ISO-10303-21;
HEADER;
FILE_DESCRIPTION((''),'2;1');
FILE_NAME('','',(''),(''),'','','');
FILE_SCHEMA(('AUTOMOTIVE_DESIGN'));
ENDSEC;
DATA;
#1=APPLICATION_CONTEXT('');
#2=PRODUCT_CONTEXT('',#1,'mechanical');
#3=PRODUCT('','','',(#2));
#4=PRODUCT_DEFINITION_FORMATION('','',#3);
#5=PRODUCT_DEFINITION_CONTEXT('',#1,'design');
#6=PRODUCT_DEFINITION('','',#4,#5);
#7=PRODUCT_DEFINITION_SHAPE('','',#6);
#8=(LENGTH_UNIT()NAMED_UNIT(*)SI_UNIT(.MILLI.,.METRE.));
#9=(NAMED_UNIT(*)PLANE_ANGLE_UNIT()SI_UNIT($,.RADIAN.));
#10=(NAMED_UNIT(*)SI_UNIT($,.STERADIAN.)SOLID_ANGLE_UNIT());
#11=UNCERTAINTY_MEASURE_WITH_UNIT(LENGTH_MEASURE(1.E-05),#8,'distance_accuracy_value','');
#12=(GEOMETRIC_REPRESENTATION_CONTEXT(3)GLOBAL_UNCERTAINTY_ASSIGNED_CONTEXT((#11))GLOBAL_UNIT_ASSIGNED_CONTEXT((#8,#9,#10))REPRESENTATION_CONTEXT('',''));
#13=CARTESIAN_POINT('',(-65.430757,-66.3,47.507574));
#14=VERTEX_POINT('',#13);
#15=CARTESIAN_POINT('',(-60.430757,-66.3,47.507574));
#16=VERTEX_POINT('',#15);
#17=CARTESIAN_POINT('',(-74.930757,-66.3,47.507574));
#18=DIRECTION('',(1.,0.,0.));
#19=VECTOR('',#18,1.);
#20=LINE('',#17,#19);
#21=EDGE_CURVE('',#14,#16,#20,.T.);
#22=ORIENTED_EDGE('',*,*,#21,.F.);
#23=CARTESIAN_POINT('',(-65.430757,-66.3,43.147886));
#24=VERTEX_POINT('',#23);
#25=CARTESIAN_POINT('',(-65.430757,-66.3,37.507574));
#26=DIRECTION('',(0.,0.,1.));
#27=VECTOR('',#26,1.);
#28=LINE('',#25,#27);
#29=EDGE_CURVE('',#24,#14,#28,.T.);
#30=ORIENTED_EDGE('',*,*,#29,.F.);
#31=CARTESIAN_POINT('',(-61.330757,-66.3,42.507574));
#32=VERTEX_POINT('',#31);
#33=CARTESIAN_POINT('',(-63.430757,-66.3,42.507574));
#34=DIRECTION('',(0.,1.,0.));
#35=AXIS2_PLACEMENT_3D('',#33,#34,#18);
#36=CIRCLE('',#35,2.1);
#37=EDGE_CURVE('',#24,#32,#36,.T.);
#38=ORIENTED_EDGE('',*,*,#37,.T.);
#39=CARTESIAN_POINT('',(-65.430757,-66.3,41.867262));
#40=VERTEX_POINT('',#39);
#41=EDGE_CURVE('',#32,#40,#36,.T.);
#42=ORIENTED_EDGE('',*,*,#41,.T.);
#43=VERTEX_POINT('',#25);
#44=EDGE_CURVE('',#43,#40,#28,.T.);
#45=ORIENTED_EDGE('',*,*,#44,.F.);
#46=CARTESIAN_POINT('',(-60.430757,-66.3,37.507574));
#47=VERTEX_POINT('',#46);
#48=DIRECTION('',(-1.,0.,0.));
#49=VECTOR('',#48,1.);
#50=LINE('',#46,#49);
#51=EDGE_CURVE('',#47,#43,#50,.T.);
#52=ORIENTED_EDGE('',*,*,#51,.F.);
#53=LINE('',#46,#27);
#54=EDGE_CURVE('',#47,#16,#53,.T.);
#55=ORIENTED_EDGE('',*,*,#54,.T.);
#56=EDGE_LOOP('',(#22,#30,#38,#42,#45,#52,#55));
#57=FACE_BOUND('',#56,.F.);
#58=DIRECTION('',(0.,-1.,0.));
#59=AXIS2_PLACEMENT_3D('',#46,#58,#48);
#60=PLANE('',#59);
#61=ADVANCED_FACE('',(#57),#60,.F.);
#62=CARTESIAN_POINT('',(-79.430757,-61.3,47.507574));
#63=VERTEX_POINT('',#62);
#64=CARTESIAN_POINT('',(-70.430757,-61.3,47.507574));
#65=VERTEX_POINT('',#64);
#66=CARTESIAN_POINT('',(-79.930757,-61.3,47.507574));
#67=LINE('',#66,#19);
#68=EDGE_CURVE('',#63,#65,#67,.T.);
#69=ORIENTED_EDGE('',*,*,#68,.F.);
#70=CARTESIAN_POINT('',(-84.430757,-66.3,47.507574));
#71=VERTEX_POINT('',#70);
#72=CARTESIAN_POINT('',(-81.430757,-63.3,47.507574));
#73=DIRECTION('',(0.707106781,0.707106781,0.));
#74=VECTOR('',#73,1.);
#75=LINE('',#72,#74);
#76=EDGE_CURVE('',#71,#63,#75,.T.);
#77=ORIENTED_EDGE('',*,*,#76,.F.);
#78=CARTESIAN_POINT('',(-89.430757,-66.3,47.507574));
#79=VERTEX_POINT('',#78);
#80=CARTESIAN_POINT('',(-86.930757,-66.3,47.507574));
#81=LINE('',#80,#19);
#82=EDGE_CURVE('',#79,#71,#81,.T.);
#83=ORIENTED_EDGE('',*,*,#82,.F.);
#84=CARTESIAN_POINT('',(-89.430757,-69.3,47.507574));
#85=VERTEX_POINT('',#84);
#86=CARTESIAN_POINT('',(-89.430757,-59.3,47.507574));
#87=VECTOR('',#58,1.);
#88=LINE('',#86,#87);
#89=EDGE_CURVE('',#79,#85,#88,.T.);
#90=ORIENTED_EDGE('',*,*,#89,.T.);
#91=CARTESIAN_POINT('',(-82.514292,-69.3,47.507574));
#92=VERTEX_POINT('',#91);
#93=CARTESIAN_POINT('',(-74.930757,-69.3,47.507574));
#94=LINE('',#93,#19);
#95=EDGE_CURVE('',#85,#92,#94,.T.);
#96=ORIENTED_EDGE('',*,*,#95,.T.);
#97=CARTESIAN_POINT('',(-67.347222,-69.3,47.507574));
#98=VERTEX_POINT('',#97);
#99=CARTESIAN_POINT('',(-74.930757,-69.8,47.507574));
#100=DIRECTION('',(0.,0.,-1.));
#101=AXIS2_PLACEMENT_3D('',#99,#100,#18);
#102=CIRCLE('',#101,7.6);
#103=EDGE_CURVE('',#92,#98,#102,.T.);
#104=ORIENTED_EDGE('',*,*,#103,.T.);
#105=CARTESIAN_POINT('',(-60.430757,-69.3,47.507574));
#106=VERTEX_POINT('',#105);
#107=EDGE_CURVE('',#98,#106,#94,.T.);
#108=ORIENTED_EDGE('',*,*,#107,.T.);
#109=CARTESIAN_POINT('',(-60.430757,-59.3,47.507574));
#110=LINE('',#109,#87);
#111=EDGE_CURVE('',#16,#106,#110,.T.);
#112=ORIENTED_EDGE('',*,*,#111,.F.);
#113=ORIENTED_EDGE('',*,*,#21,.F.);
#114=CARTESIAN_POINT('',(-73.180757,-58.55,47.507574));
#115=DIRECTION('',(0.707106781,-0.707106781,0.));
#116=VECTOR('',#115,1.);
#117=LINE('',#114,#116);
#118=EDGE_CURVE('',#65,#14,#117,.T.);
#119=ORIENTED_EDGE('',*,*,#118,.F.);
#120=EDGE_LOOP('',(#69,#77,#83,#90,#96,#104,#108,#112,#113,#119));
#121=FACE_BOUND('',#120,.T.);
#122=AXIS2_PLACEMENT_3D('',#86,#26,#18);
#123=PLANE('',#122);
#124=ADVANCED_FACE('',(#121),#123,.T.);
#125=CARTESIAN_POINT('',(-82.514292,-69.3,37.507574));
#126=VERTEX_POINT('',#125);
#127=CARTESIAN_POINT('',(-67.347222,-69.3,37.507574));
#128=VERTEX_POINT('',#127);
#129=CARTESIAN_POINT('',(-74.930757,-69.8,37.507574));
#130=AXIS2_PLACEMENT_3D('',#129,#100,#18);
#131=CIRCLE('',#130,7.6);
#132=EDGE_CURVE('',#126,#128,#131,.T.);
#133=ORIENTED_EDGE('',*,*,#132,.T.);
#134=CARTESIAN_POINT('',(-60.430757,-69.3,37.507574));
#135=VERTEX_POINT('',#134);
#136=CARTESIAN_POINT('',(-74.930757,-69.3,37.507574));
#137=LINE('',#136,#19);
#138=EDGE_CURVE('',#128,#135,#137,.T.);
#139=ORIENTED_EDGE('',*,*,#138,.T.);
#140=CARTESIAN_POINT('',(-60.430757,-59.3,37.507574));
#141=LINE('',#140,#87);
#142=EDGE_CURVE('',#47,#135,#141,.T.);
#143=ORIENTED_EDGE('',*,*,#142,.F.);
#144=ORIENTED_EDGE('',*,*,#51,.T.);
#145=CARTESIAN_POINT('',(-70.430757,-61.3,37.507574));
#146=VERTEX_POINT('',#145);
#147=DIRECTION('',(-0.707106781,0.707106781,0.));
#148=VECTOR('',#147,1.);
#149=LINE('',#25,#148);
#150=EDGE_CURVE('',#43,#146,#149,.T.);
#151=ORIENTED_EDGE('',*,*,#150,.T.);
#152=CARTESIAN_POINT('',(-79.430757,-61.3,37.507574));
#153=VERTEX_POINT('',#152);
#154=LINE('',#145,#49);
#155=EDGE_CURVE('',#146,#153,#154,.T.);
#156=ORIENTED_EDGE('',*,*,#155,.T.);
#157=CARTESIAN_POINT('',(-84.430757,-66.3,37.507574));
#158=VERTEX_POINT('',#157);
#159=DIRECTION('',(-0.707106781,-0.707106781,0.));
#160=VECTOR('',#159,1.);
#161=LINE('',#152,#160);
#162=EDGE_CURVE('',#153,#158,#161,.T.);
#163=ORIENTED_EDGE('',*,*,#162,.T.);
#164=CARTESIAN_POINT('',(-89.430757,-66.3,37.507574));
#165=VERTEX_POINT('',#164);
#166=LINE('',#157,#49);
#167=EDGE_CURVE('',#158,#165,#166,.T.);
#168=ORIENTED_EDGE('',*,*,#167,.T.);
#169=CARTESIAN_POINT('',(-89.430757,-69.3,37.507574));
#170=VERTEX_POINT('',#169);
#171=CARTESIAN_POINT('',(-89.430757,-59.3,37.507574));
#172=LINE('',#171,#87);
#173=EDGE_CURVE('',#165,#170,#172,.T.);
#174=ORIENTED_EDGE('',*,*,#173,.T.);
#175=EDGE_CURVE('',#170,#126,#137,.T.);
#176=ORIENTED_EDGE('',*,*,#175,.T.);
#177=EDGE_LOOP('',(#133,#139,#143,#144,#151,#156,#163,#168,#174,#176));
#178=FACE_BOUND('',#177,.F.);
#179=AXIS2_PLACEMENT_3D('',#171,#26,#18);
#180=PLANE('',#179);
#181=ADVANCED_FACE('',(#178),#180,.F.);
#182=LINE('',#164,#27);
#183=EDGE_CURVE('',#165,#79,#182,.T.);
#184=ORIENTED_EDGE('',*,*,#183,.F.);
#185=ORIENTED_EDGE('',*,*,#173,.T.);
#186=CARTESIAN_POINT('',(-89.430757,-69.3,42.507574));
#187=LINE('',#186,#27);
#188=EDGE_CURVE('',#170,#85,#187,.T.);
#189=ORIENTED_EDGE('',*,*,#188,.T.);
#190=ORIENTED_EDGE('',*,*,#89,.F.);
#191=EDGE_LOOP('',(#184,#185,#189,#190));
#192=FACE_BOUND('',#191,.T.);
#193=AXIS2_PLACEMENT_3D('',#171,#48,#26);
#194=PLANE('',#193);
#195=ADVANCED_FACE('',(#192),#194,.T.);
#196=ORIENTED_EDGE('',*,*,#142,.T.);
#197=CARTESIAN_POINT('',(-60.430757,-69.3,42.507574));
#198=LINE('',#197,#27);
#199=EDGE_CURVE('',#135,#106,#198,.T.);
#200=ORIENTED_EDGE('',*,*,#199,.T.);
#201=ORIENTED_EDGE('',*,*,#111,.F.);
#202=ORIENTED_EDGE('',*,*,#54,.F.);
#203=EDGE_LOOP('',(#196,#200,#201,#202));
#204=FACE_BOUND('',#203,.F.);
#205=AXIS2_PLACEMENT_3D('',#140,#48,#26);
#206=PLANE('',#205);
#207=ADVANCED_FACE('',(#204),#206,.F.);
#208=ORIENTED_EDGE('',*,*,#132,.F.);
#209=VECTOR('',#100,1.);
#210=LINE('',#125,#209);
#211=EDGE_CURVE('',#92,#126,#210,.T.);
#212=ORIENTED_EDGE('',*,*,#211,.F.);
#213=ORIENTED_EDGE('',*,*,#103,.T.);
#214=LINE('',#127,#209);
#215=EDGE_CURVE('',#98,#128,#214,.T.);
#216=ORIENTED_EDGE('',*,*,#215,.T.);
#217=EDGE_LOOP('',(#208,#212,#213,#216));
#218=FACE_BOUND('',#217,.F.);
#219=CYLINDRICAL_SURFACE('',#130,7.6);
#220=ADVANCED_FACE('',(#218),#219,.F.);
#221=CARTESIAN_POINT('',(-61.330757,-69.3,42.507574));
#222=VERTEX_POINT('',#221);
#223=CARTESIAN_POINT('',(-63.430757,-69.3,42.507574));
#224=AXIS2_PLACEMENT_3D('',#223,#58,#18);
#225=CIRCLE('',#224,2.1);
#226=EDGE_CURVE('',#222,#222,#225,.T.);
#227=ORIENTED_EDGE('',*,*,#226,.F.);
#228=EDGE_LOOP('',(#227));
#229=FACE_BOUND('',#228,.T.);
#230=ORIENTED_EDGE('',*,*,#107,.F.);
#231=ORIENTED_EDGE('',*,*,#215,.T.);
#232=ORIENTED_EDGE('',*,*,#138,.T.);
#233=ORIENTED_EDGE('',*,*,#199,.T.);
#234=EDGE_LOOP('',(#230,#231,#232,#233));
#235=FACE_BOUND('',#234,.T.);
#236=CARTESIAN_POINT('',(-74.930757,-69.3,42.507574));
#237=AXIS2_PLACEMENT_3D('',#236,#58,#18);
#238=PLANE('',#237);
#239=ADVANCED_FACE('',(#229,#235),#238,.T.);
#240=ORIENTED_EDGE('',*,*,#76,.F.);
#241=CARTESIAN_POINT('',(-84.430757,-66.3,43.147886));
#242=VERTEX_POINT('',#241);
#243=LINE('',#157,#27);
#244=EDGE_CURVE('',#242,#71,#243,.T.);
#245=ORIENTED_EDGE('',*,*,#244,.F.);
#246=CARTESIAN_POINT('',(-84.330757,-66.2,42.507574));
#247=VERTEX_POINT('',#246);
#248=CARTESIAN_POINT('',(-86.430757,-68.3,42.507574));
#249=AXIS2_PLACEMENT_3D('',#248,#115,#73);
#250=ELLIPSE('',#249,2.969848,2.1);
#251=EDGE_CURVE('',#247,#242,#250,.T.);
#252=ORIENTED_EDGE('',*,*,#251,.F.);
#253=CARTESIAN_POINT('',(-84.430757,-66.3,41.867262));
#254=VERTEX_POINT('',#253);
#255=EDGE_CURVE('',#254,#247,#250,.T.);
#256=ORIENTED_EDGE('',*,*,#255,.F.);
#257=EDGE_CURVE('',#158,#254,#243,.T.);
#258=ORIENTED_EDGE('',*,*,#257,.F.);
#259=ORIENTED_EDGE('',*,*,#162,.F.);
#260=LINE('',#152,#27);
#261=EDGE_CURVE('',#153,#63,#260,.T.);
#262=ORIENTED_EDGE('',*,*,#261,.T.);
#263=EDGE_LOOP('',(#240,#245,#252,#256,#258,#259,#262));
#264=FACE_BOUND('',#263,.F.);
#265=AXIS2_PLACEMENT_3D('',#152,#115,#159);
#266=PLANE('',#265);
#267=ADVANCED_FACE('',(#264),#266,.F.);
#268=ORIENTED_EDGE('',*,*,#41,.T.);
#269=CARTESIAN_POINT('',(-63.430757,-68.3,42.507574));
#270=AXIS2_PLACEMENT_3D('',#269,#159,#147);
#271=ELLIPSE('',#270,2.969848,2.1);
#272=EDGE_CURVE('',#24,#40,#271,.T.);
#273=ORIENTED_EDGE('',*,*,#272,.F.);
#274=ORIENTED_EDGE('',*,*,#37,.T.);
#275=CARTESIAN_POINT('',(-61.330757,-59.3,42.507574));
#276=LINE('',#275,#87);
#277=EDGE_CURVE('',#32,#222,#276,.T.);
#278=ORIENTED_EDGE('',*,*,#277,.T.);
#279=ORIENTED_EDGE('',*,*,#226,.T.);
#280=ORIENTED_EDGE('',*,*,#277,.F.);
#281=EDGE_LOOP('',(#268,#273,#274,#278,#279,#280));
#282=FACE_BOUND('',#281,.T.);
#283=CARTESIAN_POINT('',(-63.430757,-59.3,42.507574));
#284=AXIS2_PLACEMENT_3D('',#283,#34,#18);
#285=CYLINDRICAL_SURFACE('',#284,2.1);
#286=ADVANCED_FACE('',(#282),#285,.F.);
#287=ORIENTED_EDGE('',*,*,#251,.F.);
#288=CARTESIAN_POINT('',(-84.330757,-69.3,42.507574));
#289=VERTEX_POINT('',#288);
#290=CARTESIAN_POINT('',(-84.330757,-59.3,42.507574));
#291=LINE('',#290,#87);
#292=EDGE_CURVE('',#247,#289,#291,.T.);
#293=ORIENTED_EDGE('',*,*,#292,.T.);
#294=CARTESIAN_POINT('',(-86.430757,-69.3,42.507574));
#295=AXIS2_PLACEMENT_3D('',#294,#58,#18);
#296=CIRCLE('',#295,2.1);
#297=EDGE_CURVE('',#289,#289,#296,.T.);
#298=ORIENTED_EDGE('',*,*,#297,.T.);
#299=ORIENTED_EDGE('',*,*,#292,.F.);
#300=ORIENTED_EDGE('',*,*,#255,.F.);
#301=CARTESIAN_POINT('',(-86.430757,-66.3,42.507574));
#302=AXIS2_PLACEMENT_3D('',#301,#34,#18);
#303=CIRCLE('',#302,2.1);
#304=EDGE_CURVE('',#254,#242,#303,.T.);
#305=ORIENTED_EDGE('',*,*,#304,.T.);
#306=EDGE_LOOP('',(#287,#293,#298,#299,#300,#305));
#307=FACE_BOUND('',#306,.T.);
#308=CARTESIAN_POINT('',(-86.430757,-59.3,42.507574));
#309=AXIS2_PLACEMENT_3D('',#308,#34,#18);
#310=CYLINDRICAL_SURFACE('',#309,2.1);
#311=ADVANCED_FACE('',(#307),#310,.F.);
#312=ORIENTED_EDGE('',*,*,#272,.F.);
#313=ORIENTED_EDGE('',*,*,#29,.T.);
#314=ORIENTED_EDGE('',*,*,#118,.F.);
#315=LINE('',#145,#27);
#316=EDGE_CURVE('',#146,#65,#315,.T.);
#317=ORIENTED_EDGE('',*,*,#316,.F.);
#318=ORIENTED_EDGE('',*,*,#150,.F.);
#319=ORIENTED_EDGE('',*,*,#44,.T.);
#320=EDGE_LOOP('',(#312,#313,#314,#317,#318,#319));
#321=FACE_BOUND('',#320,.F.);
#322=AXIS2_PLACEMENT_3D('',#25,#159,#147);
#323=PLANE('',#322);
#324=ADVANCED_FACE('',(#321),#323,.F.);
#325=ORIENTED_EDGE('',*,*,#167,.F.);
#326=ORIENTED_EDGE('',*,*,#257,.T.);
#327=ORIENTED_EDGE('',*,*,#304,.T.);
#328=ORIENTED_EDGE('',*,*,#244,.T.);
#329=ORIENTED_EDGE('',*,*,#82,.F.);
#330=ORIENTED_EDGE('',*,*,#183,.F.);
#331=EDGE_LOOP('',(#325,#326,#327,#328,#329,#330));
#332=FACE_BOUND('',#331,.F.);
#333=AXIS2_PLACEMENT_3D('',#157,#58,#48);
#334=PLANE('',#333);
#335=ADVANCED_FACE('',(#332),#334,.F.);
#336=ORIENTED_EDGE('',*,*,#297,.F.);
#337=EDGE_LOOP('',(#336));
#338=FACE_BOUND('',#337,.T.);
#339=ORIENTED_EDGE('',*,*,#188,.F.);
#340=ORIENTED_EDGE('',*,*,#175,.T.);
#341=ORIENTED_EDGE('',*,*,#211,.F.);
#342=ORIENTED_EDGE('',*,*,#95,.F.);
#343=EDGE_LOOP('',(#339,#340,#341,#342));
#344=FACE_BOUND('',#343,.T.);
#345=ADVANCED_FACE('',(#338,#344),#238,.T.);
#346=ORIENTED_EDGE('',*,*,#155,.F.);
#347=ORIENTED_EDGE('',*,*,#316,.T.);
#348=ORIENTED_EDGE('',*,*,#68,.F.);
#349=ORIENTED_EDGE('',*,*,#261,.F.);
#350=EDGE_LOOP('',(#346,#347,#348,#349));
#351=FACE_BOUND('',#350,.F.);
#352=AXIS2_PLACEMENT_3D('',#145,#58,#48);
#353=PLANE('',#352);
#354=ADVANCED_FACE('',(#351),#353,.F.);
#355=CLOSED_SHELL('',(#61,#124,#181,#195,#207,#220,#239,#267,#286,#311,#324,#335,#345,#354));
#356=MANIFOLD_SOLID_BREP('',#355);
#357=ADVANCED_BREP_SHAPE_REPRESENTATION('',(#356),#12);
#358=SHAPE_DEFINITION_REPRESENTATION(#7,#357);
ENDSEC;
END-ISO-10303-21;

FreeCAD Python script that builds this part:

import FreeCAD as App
import Part
import Sketcher

V = App.Vector
Q = App.Units.Quantity

doc = App.newDocument("Part")
body = doc.addObject("PartDesign::Body", "Body")

sketch1 = body.newObject("Sketcher::SketchObject", "Sketch")
sketch1.AttachmentSupport = (doc.getObject("XZ_Plane"), [""])
sketch1.MapMode = "FlatFace"
sketch1.AttachmentOffset = App.Placement(V(0, 0, 59.3), App.Rotation())
sketch1.addGeometry(Part.LineSegment(V(-89.4, 47.5, 0), V(-89.4, 37.5, 0)), False)
sketch1.addGeometry(Part.LineSegment(V(-89.4, 37.5, 0), V(-60.4, 37.5, 0)), False)
sketch1.addGeometry(Part.LineSegment(V(-60.4, 37.5, 0), V(-60.4, 47.5, 0)), False)
sketch1.addGeometry(Part.LineSegment(V(-60.4, 47.5, 0), V(-89.4, 47.5, 0)), False)
sketch1.addGeometry(Part.Circle(V(-86.4, 42.5, 0), V(0, 0, 1), 2.1), False)
sketch1.addGeometry(Part.Circle(V(-63.4, 42.5, 0), V(0, 0, 1), 2.1), False)
sketch1.addConstraint(Sketcher.Constraint("Coincident", 0, 2, 1, 1))
sketch1.addConstraint(Sketcher.Constraint("Coincident", 1, 2, 2, 1))
sketch1.addConstraint(Sketcher.Constraint("Coincident", 2, 2, 3, 1))
sketch1.addConstraint(Sketcher.Constraint("Coincident", 3, 2, 0, 1))
sketch1.addConstraint(Sketcher.Constraint("Vertical", 0))
sketch1.addConstraint(Sketcher.Constraint("Horizontal", 1))
sketch1.addConstraint(Sketcher.Constraint("Vertical", 2))
sketch1.addConstraint(Sketcher.Constraint("Horizontal", 3))
sketch1.addConstraint(Sketcher.Constraint("Equal", 4, 5))
sketch1.addConstraint(Sketcher.Constraint("Horizontal", 4, 3, 5, 3))
sketch1.addConstraint(Sketcher.Constraint("Diameter", 4, Q("4.2 mm")))
sketch1.addConstraint(Sketcher.Constraint("DistanceX", 1, 1, 1, 2, Q("29 mm")))
sketch1.addConstraint(Sketcher.Constraint("DistanceY", 0, 2, 0, 1, Q("10 mm")))
sketch1.addConstraint(Sketcher.Constraint("DistanceX", 4, 3, 5, 3, Q("23 mm")))
sketch1.addConstraint(Sketcher.Constraint("DistanceX", 0, 2, 4, 3, Q("3 mm")))
sketch1.addConstraint(Sketcher.Constraint("DistanceY", 0, 2, 4, 3, Q("5 mm")))
sketch1.addConstraint(Sketcher.Constraint("DistanceX", 4, 3, -1, 1, Q("86.430757 mm")))
sketch1.addConstraint(Sketcher.Constraint("DistanceY", -1, 1, 4, 3, Q("42.507574 mm")))
pad1 = body.newObject("PartDesign::Pad", "Pad")
pad1.Profile = sketch1
pad1.Length = 10

sketch2 = body.newObject("Sketcher::SketchObject", "Sketch001")
sketch2.AttachmentSupport = (doc.getObject("XY_Plane"), [""])
sketch2.MapMode = "FlatFace"
sketch2.AttachmentOffset = App.Placement(V(0, 0, 37.507574), App.Rotation())
sketch2.addGeometry(Part.Circle(V(-75, -70, 0), V(0, 0, 1), 8), False)
sketch2.addGeometry(Part.LineSegment(V(-60, -66, 0), V(-65, -66, 0)), False)
sketch2.addGeometry(Part.LineSegment(V(-65, -66, 0), V(-70, -61, 0)), False)
sketch2.addGeometry(Part.LineSegment(V(-70, -61, 0), V(-79, -61, 0)), False)
sketch2.addGeometry(Part.LineSegment(V(-79, -61, 0), V(-84, -66, 0)), False)
sketch2.addGeometry(Part.LineSegment(V(-84, -66, 0), V(-89, -66, 0)), False)
sketch2.addGeometry(Part.LineSegment(V(-89, -66, 0), V(-89, -59, 0)), False)
sketch2.addGeometry(Part.LineSegment(V(-89, -59, 0), V(-60, -59, 0)), False)
sketch2.addGeometry(Part.LineSegment(V(-60, -59, 0), V(-60, -66, 0)), False)
sketch2.addConstraint(Sketcher.Constraint("Coincident", 1, 2, 2, 1))
sketch2.addConstraint(Sketcher.Constraint("Coincident", 2, 2, 3, 1))
sketch2.addConstraint(Sketcher.Constraint("Coincident", 3, 2, 4, 1))
sketch2.addConstraint(Sketcher.Constraint("Coincident", 4, 2, 5, 1))
sketch2.addConstraint(Sketcher.Constraint("Coincident", 5, 2, 6, 1))
sketch2.addConstraint(Sketcher.Constraint("Coincident", 6, 2, 7, 1))
sketch2.addConstraint(Sketcher.Constraint("Coincident", 7, 2, 8, 1))
sketch2.addConstraint(Sketcher.Constraint("Coincident", 8, 2, 1, 1))
sketch2.addConstraint(Sketcher.Constraint("Horizontal", 1))
sketch2.addConstraint(Sketcher.Constraint("Horizontal", 3))
sketch2.addConstraint(Sketcher.Constraint("Horizontal", 5))
sketch2.addConstraint(Sketcher.Constraint("Vertical", 6))
sketch2.addConstraint(Sketcher.Constraint("Horizontal", 7))
sketch2.addConstraint(Sketcher.Constraint("Vertical", 8))
sketch2.addConstraint(Sketcher.Constraint("Perpendicular", 2, 4))
sketch2.addConstraint(Sketcher.Constraint("Horizontal", 1, 2, 4, 2))
sketch2.addConstraint(Sketcher.Constraint("Equal", 1, 5))
sketch2.addConstraint(Sketcher.Constraint("Equal", 2, 4))
sketch2.addConstraint(Sketcher.Constraint("Diameter", 0, Q("15.2 mm")))
sketch2.addConstraint(Sketcher.Constraint("DistanceX", 1, 2, 1, 1, Q("5 mm")))
sketch2.addConstraint(Sketcher.Constraint("DistanceX", 3, 2, 3, 1, Q("9 mm")))
sketch2.addConstraint(Sketcher.Constraint("DistanceX", 7, 1, 7, 2, Q("29 mm")))
sketch2.addConstraint(Sketcher.Constraint("DistanceY", 6, 1, 6, 2, Q("7 mm")))
sketch2.addConstraint(Sketcher.Constraint("DistanceY", 0, 3, -1, 1, Q("69.8 mm")))
sketch2.addConstraint(Sketcher.Constraint("DistanceY", 1, 2, -1, 1, Q("66.3 mm")))
sketch2.addConstraint(Sketcher.Constraint("DistanceX", 0, 3, 1, 2, Q("9.5 mm")))
sketch2.addConstraint(Sketcher.Constraint("DistanceX", 0, 3, -1, 1, Q("74.930757 mm")))
pocket1 = body.newObject("PartDesign::Pocket", "Pocket")
pocket1.Profile = sketch2
pocket1.Type = "ThroughAll"
pocket1.Reversed = True

doc.recompute()
